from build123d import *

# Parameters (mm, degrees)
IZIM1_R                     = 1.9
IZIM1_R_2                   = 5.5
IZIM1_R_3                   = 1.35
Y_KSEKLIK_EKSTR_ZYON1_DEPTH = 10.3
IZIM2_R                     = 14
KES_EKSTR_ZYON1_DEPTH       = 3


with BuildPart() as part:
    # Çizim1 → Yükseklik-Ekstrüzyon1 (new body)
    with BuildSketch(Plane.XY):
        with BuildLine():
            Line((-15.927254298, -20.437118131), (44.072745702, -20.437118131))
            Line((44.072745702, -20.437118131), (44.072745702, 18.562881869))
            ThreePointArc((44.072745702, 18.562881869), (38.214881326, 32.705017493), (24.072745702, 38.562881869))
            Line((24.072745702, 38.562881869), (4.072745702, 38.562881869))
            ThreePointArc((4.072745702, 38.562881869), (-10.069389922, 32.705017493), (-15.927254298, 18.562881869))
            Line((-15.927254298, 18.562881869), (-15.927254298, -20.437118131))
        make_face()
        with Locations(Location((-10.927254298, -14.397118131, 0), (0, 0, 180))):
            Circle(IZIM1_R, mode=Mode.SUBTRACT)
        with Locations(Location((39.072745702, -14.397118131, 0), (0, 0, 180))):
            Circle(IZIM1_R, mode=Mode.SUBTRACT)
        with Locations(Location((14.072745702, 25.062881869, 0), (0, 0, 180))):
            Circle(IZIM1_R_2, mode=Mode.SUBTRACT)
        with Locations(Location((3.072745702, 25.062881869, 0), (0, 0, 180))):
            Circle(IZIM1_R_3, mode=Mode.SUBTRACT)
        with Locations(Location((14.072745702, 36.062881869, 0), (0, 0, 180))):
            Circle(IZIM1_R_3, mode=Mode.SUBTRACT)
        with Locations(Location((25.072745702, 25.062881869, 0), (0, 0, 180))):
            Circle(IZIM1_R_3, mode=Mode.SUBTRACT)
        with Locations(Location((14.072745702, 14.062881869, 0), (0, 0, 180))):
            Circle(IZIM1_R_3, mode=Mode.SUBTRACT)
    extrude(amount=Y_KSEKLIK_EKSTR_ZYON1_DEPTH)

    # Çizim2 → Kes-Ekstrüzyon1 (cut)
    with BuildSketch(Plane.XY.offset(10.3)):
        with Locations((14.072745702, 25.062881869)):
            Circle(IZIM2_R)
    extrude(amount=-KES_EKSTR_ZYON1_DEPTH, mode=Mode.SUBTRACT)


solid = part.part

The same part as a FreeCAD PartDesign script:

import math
import FreeCAD as App
import Part
import Sketcher
from FreeCAD import Vector

doc = App.newDocument("Part")
body = doc.addObject("PartDesign::Body", "Body")

# Sketch on XY plane
sketch1 = body.newObject("Sketcher::SketchObject", "Sketch")
sketch1.AttachmentSupport = (doc.getObject("XY_Plane"), [""])
sketch1.MapMode = "FlatFace"
sketch1.addGeometry([
    Part.LineSegment(Vector(-15.9, -20.4, 0), Vector(44.1, -20.4, 0)),  # 0
    Part.LineSegment(Vector(44.1, -20.4, 0), Vector(44.1, 18.6, 0)),  # 1
    Part.ArcOfCircle(Part.Circle(Vector(24.1, 18.6, 0), Vector(0, 0, 1), 20), math.radians(0), math.radians(90)),  # 2
    Part.LineSegment(Vector(24.1, 38.6, 0), Vector(4.1, 38.6, 0)),  # 3
    Part.ArcOfCircle(Part.Circle(Vector(4.1, 18.6, 0), Vector(0, 0, 1), 20), math.radians(90), math.radians(180)),  # 4
    Part.LineSegment(Vector(-15.9, 18.6, 0), Vector(-15.9, -20.4, 0)),  # 5
    Part.Circle(Vector(-10.9, -14.4, 0), Vector(0, 0, 1), 1.9),  # 6
    Part.Circle(Vector(39.1, -14.4, 0), Vector(0, 0, 1), 1.9),  # 7
    Part.Circle(Vector(3.1, 25.1, 0), Vector(0, 0, 1), 1.4),  # 8
    Part.Circle(Vector(14.1, 14.1, 0), Vector(0, 0, 1), 1.4),  # 9
    Part.Circle(Vector(14.1, 25.1, 0), Vector(0, 0, 1), 5.5),  # 10
    Part.Circle(Vector(25.1, 25.1, 0), Vector(0, 0, 1), 1.4),  # 11
    Part.Circle(Vector(14.1, 36.1, 0), Vector(0, 0, 1), 1.4),  # 12
], False)
sketch1.addConstraint([
    Sketcher.Constraint("Coincident", 0, 2, 1, 1),
    Sketcher.Constraint("Tangent", 1, 2, 2, 1),
    Sketcher.Constraint("Tangent", 2, 2, 3, 1),
    Sketcher.Constraint("Tangent", 3, 2, 4, 1),
    Sketcher.Constraint("Tangent", 4, 2, 5, 1),
    Sketcher.Constraint("Coincident", 5, 2, 0, 1),
    Sketcher.Constraint("Horizontal", 0),
    Sketcher.Constraint("Vertical", 1),
    Sketcher.Constraint("Horizontal", 3),
    Sketcher.Constraint("Vertical", 5),
    Sketcher.Constraint("Equal", 2, 4),
    Sketcher.Constraint("Equal", 6, 7),
    Sketcher.Constraint("Equal", 8, 9),
    Sketcher.Constraint("Equal", 9, 11),
    Sketcher.Constraint("Equal", 11, 12),
    Sketcher.Constraint("Horizontal", 6, 3, 7, 3),
    Sketcher.Constraint("Horizontal", 8, 3, 10, 3),
    Sketcher.Constraint("Horizontal", 10, 3, 11, 3),
    Sketcher.Constraint("Vertical", 9, 3, 10, 3),
    Sketcher.Constraint("Vertical", 10, 3, 12, 3),
    Sketcher.Constraint("Diameter", 10, 11.0),
    Sketcher.Constraint("Radius", 2, 20.0),
    Sketcher.Constraint("Diameter", 6, 3.8),
    Sketcher.Constraint("Diameter", 8, 2.7),
    Sketcher.Constraint("DistanceX", 0, 1, 0, 2, 60.0),
    Sketcher.Constraint("DistanceY", 1, 1, 1, 2, 39.0),
    Sketcher.Constraint("DistanceX", 6, 3, 4, 3, 15.0),
    Sketcher.Constraint("DistanceX", 2, 3, 7, 3, 15.0),
    Sketcher.Constraint("DistanceX", 8, 3, 4, 3, 1.0),
    Sketcher.Constraint("DistanceX", 9, 3, 2, 3, 10.0),
    Sketcher.Constraint("DistanceY", 9, 3, 8, 3, 11.0),
    Sketcher.Constraint("DistanceX", 2, 3, 11, 3, 1.0),
    Sketcher.Constraint("DistanceY", 10, 3, 12, 3, 11.0),
    Sketcher.Constraint("DistanceY", 4, 3, 8, 3, 6.5),
    Sketcher.Constraint("DistanceY", 6, 3, 4, 3, 32.96),
    Sketcher.Constraint("DistanceY", -1, 1, 2, 3, 18.562882),
    Sketcher.Constraint("DistanceX", -1, 1, 2, 3, 24.072746),
])
pad1 = body.newObject("PartDesign::Pad", "Pad")
pad1.Profile = sketch1
pad1.Length = 10.3

# Sketch on XY plane
sketch2 = body.newObject("Sketcher::SketchObject", "Sketch001")
sketch2.AttachmentSupport = (doc.getObject("XY_Plane"), [""])
sketch2.MapMode = "FlatFace"
sketch2.AttachmentOffset = App.Placement(Vector(0, 0, 10.3), App.Rotation())
sketch2.addGeometry(Part.Circle(Vector(14, 25, 0), Vector(0, 0, 1), 14), False)
sketch2.addConstraint([
    Sketcher.Constraint("Diameter", 0, 28.0),
    Sketcher.Constraint("DistanceY", -1, 1, 0, 3, 25.062882),
    Sketcher.Constraint("DistanceX", -1, 1, 0, 3, 14.072746),
])
pocket1 = body.newObject("PartDesign::Pocket", "Pocket")
pocket1.Profile = sketch2
pocket1.Length = 3

doc.recompute()
